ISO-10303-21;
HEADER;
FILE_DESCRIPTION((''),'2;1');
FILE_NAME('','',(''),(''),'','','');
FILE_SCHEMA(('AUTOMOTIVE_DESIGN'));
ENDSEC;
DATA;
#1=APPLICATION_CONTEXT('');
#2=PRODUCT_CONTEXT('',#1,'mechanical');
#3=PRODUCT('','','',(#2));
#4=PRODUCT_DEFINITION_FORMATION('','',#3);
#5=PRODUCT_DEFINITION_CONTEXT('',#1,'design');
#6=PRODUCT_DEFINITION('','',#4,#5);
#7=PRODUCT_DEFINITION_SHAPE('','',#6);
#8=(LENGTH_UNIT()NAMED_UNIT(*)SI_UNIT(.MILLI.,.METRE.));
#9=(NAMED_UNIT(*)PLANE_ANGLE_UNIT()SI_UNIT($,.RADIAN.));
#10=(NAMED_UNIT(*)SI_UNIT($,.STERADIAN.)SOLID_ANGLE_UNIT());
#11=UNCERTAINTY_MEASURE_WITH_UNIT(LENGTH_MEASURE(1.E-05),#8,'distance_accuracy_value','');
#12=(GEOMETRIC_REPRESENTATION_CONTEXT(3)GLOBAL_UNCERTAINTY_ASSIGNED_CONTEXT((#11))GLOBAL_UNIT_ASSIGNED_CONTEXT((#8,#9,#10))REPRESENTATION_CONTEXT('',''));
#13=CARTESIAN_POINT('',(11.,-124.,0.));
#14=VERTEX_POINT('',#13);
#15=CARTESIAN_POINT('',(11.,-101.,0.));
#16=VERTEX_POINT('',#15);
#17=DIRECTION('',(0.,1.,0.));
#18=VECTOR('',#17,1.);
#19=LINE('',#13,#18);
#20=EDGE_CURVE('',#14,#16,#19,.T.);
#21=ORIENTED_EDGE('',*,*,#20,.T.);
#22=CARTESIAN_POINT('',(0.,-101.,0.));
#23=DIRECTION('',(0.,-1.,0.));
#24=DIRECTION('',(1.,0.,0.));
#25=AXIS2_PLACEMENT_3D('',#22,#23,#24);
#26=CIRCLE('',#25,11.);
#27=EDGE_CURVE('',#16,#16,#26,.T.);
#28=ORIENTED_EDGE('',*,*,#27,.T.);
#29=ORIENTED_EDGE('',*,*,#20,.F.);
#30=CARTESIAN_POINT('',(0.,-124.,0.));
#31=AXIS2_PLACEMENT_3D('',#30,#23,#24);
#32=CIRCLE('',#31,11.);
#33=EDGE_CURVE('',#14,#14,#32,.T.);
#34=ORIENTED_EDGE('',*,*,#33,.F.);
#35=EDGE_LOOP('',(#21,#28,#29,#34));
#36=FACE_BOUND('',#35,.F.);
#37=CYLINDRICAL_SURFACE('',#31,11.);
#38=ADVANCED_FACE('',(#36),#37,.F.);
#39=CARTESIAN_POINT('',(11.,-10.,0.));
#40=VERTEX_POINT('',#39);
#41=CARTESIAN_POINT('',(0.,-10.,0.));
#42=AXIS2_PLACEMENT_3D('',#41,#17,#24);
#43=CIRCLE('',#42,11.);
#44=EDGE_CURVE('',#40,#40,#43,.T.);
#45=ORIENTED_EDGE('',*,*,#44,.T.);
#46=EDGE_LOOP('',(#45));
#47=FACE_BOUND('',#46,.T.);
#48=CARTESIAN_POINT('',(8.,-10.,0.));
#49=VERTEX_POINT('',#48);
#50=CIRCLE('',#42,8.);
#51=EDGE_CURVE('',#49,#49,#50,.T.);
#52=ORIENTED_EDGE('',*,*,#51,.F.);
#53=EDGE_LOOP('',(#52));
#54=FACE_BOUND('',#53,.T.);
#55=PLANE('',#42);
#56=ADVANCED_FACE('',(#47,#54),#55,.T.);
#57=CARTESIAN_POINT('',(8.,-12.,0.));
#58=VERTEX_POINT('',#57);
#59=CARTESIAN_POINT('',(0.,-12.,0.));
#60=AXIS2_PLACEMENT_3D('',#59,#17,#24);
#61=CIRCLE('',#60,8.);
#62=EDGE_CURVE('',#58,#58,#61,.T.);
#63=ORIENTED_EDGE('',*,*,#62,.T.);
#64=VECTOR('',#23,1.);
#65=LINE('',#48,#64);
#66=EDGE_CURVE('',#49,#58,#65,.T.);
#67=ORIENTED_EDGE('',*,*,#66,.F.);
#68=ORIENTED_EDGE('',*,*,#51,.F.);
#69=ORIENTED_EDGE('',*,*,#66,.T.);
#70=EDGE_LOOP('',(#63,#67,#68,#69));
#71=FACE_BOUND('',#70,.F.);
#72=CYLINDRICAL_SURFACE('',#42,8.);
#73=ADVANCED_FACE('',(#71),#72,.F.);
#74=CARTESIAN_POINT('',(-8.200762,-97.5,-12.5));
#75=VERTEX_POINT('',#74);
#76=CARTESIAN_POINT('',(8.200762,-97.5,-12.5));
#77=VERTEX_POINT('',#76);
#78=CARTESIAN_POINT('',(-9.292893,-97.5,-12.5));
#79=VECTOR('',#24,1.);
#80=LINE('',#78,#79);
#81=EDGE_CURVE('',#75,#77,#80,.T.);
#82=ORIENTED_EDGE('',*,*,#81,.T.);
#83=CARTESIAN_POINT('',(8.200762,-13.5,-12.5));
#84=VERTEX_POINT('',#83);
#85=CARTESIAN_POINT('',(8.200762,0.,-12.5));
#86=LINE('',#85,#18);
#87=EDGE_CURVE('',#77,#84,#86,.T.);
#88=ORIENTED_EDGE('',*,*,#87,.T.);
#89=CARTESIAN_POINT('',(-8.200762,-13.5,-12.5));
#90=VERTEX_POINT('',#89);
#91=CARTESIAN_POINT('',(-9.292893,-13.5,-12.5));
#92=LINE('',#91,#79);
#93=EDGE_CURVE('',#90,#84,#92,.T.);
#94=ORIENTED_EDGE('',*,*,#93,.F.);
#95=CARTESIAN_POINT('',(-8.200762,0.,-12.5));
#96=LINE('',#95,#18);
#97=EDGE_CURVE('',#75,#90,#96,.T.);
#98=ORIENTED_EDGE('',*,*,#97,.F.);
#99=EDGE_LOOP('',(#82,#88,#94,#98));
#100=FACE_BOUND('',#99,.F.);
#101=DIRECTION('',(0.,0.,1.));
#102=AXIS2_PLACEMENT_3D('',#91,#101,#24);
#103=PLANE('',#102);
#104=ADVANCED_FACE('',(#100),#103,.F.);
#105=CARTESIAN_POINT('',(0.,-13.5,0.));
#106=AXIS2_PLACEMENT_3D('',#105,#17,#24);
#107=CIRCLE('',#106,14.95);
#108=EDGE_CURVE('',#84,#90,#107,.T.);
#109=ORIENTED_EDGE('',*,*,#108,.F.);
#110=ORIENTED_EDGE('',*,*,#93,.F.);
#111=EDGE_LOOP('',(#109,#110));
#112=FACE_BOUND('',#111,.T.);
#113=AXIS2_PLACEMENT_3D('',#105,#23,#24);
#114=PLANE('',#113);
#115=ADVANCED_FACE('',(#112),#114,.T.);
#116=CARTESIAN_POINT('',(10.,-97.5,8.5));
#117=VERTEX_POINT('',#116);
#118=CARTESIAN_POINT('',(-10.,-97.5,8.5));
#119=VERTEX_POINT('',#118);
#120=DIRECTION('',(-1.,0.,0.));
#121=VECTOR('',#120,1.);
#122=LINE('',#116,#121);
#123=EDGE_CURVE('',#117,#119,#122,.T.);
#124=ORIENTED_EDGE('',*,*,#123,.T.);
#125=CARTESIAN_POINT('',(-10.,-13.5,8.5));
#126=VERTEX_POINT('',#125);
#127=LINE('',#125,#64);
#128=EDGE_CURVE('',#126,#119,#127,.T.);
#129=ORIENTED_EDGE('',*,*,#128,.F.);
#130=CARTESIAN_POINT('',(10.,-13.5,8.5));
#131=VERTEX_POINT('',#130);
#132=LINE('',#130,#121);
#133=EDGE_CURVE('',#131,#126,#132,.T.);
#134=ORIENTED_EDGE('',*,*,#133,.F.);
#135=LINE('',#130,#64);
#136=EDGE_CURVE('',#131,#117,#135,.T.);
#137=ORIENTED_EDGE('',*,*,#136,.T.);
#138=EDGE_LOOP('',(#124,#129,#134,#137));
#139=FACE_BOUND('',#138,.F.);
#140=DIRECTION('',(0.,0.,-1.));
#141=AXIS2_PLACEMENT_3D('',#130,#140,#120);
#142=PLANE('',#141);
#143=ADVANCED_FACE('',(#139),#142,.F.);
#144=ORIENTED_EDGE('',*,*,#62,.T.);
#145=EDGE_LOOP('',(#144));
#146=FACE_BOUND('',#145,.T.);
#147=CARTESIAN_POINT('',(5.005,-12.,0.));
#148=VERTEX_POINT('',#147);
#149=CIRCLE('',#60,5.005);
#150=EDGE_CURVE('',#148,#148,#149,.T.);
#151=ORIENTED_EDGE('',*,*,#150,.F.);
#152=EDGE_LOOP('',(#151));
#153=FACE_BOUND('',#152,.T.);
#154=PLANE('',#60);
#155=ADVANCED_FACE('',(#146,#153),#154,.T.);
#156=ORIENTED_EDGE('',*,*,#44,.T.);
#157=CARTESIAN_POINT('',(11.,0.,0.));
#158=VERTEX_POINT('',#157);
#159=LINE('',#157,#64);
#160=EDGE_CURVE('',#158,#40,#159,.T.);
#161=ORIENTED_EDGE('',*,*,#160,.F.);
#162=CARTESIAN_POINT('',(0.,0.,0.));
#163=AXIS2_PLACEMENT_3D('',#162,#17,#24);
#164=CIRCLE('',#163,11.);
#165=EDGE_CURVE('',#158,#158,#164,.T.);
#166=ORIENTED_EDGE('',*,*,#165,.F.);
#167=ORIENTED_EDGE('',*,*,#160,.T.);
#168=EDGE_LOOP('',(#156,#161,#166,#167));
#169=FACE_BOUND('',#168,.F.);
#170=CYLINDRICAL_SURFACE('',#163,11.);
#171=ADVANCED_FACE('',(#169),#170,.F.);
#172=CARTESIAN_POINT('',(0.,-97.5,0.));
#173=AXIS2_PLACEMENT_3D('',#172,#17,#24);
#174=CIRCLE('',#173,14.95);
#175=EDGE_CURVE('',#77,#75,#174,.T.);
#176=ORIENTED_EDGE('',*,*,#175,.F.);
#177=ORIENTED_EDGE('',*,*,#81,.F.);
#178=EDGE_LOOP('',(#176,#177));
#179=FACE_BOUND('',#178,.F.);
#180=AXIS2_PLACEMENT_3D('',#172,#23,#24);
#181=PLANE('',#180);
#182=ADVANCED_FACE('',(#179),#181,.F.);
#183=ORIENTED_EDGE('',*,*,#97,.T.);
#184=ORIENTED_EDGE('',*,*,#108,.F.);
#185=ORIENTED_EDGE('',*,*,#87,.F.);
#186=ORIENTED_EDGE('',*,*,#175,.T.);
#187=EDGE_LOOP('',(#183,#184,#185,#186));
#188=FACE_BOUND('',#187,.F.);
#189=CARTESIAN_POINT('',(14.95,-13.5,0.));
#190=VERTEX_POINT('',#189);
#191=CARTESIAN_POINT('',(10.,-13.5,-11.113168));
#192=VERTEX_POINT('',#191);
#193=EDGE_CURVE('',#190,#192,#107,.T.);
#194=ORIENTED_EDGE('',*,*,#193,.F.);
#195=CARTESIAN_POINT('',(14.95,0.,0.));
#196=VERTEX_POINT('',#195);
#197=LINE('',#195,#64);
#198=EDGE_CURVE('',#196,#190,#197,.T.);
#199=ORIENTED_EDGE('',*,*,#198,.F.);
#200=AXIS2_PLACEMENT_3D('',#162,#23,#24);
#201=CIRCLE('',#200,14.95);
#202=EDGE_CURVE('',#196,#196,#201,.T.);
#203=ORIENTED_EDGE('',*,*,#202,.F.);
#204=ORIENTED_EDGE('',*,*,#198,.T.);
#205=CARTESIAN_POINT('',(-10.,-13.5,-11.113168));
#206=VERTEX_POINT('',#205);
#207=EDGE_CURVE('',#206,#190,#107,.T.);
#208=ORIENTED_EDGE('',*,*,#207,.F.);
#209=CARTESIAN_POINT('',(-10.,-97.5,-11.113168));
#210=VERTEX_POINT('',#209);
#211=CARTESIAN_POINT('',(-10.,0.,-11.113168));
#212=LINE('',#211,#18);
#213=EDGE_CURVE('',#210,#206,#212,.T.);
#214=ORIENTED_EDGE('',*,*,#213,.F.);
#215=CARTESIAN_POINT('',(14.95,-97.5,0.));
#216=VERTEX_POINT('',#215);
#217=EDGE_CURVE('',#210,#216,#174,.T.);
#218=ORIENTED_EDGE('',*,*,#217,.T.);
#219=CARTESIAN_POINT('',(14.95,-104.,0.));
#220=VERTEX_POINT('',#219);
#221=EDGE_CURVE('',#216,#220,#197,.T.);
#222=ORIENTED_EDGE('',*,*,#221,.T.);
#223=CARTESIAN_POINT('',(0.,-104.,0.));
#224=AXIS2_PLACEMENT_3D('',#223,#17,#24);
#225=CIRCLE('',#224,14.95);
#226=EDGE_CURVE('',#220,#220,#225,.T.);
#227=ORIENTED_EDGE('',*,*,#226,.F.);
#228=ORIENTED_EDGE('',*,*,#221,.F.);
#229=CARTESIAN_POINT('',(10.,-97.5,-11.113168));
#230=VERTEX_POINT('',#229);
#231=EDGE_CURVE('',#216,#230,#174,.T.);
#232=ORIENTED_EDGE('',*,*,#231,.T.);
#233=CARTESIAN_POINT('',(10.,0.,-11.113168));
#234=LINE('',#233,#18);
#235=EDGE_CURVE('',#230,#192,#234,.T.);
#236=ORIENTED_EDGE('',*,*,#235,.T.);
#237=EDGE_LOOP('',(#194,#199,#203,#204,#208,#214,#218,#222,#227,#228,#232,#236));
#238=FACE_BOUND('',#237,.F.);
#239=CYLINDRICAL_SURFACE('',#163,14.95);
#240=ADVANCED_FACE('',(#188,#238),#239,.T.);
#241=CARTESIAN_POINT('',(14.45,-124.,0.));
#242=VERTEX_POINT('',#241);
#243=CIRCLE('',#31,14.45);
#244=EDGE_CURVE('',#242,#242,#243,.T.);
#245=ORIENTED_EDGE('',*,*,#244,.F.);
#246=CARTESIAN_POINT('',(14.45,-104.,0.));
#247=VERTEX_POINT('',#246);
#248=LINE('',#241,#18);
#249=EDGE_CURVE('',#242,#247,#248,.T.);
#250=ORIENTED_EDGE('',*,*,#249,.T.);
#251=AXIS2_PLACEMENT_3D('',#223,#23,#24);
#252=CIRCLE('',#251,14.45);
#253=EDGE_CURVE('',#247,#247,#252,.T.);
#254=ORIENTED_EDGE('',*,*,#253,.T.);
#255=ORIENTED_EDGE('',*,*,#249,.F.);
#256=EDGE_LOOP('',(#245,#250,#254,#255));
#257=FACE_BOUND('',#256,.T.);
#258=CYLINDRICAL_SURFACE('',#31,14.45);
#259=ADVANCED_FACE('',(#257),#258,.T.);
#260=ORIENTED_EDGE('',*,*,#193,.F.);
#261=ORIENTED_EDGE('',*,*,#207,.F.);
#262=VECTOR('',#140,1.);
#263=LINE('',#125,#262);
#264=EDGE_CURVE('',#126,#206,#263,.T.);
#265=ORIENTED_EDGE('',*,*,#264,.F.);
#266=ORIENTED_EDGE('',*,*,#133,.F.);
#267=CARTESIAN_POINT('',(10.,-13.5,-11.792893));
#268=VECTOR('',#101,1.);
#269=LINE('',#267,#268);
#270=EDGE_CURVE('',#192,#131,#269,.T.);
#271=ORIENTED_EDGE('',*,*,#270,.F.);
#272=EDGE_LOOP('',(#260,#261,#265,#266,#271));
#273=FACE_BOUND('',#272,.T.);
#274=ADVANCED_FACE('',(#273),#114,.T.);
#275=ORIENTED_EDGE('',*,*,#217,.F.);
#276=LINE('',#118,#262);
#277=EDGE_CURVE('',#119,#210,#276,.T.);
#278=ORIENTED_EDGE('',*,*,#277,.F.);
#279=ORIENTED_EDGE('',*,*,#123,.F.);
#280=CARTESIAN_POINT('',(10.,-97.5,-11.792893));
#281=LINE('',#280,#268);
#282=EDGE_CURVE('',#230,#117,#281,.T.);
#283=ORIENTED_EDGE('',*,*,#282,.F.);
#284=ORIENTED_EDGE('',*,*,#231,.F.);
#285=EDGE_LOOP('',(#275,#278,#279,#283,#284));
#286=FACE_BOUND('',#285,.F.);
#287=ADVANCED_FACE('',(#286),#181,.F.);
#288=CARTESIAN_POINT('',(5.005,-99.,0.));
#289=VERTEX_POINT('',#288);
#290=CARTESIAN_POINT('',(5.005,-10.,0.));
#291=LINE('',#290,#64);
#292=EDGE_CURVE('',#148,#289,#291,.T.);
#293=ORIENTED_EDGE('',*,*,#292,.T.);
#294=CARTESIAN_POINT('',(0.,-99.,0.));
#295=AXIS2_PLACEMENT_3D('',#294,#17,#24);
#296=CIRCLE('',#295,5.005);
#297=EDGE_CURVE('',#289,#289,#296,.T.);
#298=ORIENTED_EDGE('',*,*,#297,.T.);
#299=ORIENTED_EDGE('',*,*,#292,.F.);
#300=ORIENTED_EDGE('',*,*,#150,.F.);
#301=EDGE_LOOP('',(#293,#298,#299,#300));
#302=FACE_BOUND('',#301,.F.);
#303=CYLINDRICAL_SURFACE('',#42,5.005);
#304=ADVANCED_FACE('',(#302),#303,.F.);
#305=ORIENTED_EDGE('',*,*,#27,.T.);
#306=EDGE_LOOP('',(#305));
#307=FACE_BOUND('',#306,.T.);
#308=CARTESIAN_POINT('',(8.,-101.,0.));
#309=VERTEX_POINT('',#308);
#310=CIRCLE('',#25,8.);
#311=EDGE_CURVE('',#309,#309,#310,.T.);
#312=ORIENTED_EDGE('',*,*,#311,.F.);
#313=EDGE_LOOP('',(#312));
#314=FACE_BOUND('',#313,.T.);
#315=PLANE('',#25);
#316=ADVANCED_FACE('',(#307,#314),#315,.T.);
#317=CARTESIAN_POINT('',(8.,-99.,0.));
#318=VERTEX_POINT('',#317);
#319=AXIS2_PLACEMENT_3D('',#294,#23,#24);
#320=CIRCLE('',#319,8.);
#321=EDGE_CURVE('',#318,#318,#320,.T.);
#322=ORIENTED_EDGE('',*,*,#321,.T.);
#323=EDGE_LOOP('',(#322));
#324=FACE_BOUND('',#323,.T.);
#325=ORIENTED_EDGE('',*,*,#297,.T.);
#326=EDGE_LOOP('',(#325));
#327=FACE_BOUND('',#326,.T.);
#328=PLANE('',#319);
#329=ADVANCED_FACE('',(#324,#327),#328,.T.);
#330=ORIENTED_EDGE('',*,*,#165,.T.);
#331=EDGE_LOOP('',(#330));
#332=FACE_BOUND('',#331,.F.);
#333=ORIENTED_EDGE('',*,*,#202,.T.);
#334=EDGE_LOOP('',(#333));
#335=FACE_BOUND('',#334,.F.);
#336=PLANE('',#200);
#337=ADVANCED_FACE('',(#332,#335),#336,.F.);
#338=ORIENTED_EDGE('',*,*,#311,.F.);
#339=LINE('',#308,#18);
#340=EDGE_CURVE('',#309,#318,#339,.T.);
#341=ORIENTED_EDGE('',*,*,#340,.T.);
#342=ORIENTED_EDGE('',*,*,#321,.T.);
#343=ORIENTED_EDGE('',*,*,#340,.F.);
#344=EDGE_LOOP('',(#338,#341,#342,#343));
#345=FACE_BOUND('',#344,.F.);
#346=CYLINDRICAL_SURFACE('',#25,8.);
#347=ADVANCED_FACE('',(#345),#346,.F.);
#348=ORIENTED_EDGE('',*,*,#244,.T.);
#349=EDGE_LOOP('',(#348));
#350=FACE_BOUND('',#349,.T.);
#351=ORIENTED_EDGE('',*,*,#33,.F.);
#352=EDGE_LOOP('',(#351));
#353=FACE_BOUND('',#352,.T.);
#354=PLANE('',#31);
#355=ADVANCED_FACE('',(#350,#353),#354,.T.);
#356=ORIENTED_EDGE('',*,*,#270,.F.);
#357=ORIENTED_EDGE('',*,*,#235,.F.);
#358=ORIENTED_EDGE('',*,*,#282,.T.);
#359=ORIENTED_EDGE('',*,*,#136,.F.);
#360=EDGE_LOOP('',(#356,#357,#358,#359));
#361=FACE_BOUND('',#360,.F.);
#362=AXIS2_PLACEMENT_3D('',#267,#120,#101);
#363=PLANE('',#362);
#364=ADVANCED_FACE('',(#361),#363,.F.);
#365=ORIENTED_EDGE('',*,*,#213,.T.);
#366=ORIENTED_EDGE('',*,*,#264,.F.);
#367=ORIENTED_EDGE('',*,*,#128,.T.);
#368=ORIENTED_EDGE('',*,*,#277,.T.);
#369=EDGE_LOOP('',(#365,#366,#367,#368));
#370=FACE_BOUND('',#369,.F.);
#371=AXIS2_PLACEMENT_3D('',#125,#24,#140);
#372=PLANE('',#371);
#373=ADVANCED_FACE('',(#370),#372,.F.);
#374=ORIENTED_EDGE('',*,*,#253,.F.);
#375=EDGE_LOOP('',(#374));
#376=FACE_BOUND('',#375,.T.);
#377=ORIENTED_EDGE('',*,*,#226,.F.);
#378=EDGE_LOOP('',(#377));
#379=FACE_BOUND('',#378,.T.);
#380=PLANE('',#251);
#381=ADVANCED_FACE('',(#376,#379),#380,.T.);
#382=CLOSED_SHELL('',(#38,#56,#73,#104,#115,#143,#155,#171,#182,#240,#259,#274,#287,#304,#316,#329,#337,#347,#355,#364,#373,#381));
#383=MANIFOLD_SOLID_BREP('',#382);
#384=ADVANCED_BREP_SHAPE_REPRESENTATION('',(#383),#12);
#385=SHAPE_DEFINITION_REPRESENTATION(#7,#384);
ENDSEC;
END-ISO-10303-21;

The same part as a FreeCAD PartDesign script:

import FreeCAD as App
import Part
import Sketcher

V = App.Vector
Q = App.Units.Quantity

doc = App.newDocument("Part")
body = doc.addObject("PartDesign::Body", "Body")

# Sketch on XZ plane
sketch1 = body.newObject("Sketcher::SketchObject", "Sketch")
sketch1.AttachmentSupport = (doc.getObject("XZ_Plane"), [""])
sketch1.MapMode = "FlatFace"
sketch1.addGeometry(Part.Circle(V(0, 0, 0), V(0, 0, 1), 15), False)
sketch1.addConstraint([
    Sketcher.Constraint("Coincident", 0, 3, -1, 1),
    Sketcher.Constraint("Diameter", 0, Q("29.9 mm")),
])
pad1 = body.newObject("PartDesign::Pad", "Pad")
pad1.Profile = sketch1
pad1.Length = 124

# Sketch on XZ plane
sketch2 = body.newObject("Sketcher::SketchObject", "Sketch001")
sketch2.AttachmentSupport = (doc.getObject("XZ_Plane"), [""])
sketch2.MapMode = "FlatFace"
sketch2.addGeometry(Part.Circle(V(0, 0, 0), V(0, 0, 1), 11), False)
sketch2.addConstraint([
    Sketcher.Constraint("Coincident", 0, 3, -1, 1),
    Sketcher.Constraint("Diameter", 0, Q("22 mm")),
])
pocket1 = body.newObject("PartDesign::Pocket", "Pocket")
pocket1.Profile = sketch2
pocket1.Length = 10
pocket1.Reversed = True

# Sketch on XZ plane
sketch3 = body.newObject("Sketcher::SketchObject", "Sketch002")
sketch3.AttachmentSupport = (doc.getObject("XZ_Plane"), [""])
sketch3.MapMode = "FlatFace"
sketch3.AttachmentOffset = App.Placement(V(0, 0, 10), App.Rotation())
sketch3.addGeometry(Part.Circle(V(0, 0, 0), V(0, 0, 1), 8), False)
sketch3.addConstraint([
    Sketcher.Constraint("Coincident", 0, 3, -1, 1),
    Sketcher.Constraint("Diameter", 0, Q("16 mm")),
])
pocket2 = body.newObject("PartDesign::Pocket", "Pocket001")
pocket2.Profile = sketch3
pocket2.Length = 2
pocket2.Reversed = True

# Sketch on XZ plane
sketch4 = body.newObject("Sketcher::SketchObject", "Sketch003")
sketch4.AttachmentSupport = (doc.getObject("XZ_Plane"), [""])
sketch4.MapMode = "FlatFace"
sketch4.AttachmentOffset = App.Placement(V(0, 0, 10), App.Rotation())
sketch4.addGeometry(Part.Circle(V(0, 0, 0), V(0, 0, 1), 5), False)
sketch4.addConstraint([
    Sketcher.Constraint("Coincident", 0, 3, -1, 1),
    Sketcher.Constraint("Diameter", 0, Q("10.01 mm")),
])
pocket3 = body.newObject("PartDesign::Pocket", "Pocket002")
pocket3.Profile = sketch4
pocket3.Type = "ThroughAll"
pocket3.Reversed = True

# Sketch on XZ plane
sketch5 = body.newObject("Sketcher::SketchObject", "Sketch004")
sketch5.AttachmentSupport = (doc.getObject("XZ_Plane"), [""])
sketch5.MapMode = "FlatFace"
sketch5.AttachmentOffset = App.Placement(V(0, 0, 124), App.Rotation())
sketch5.addGeometry(Part.Circle(V(0, 0, 0), V(0, 0, 1), 11), False)
sketch5.addConstraint([
    Sketcher.Constraint("Coincident", 0, 3, -1, 1),
    Sketcher.Constraint("Diameter", 0, Q("22 mm")),
])
pocket4 = body.newObject("PartDesign::Pocket", "Pocket003")
pocket4.Profile = sketch5
pocket4.Length = 23

# Sketch on XZ plane
sketch6 = body.newObject("Sketcher::SketchObject", "Sketch005")
sketch6.AttachmentSupport = (doc.getObject("XZ_Plane"), [""])
sketch6.MapMode = "FlatFace"
sketch6.AttachmentOffset = App.Placement(V(0, 0, 101), App.Rotation())
sketch6.addGeometry(Part.Circle(V(0, 0, 0), V(0, 0, 1), 8), False)
sketch6.addConstraint([
    Sketcher.Constraint("Coincident", 0, 3, -1, 1),
    Sketcher.Constraint("Diameter", 0, Q("16 mm")),
])
pocket5 = body.newObject("PartDesign::Pocket", "Pocket004")
pocket5.Profile = sketch6
pocket5.Length = 2

# Sketch on XZ plane
sketch7 = body.newObject("Sketcher::SketchObject", "Sketch006")
sketch7.AttachmentSupport = (doc.getObject("XZ_Plane"), [""])
sketch7.MapMode = "FlatFace"
sketch7.AttachmentOffset = App.Placement(V(0, 0, 13.5), App.Rotation())
sketch7.addGeometry([
    Part.LineSegment(V(-15.4, 15.4, 0), V(-15.4, -15.4, 0)),  # 0
    Part.LineSegment(V(-15.4, -15.4, 0), V(15.4, -15.4, 0)),  # 1
    Part.LineSegment(V(15.4, -15.4, 0), V(15.4, 15.4, 0)),  # 2
    Part.LineSegment(V(15.4, 15.4, 0), V(-15.4, 15.4, 0)),  # 3
    Part.LineSegment(V(9.3, -12.5, 0), V(-9.3, -12.5, 0)),  # 4
    Part.LineSegment(V(-9.3, -12.5, 0), V(-10, -11.8, 0)),  # 5
    Part.LineSegment(V(-10, -11.8, 0), V(-10, 8.5, 0)),  # 6
    Part.LineSegment(V(-10, 8.5, 0), V(10, 8.5, 0)),  # 7
    Part.LineSegment(V(10, 8.5, 0), V(10, -11.8, 0)),  # 8
    Part.LineSegment(V(10, -11.8, 0), V(9.3, -12.5, 0)),  # 9
], False)
sketch7.addConstraint([
    Sketcher.Constraint("Coincident", 0, 2, 1, 1),
    Sketcher.Constraint("Coincident", 1, 2, 2, 1),
    Sketcher.Constraint("Coincident", 2, 2, 3, 1),
    Sketcher.Constraint("Coincident", 3, 2, 0, 1),
    Sketcher.Constraint("Coincident", 4, 2, 5, 1),
    Sketcher.Constraint("Coincident", 5, 2, 6, 1),
    Sketcher.Constraint("Coincident", 6, 2, 7, 1),
    Sketcher.Constraint("Coincident", 7, 2, 8, 1),
    Sketcher.Constraint("Coincident", 8, 2, 9, 1),
    Sketcher.Constraint("Coincident", 9, 2, 4, 1),
    Sketcher.Constraint("Vertical", 0),
    Sketcher.Constraint("Horizontal", 1),
    Sketcher.Constraint("Vertical", 2),
    Sketcher.Constraint("Horizontal", 3),
    Sketcher.Constraint("Horizontal", 4),
    Sketcher.Constraint("Vertical", 6),
    Sketcher.Constraint("Horizontal", 7),
    Sketcher.Constraint("Vertical", 8),
    Sketcher.Constraint("Symmetric", 0, 2, 2, 2, -1, 1),
    Sketcher.Constraint("Symmetric", 5, 2, 8, 2, -2),
    Sketcher.Constraint("Perpendicular", 5, 9),
    Sketcher.Constraint("Equal", 3, 0),
    Sketcher.Constraint("Equal", 5, 9),
    Sketcher.Constraint("DistanceX", 7, 1, 7, 2, Q("20 mm")),
    Sketcher.Constraint("Distance", 5, Q("1 mm")),
    Sketcher.Constraint("DistanceX", 1, 1, 1, 2, Q("30.9 mm")),
    Sketcher.Constraint("DistanceY", 4, 2, 6, 2, Q("21 mm")),
    Sketcher.Constraint("DistanceY", 4, 2, -1, 1, Q("12.5 mm")),
])
pocket6 = body.newObject("PartDesign::Pocket", "Pocket005")
pocket6.Profile = sketch7
pocket6.Length = 84
pocket6.Reversed = True

# Sketch on XZ plane
sketch8 = body.newObject("Sketcher::SketchObject", "Sketch007")
sketch8.AttachmentSupport = (doc.getObject("XZ_Plane"), [""])
sketch8.MapMode = "FlatFace"
sketch8.AttachmentOffset = App.Placement(V(0, 0, 124), App.Rotation())
sketch8.addGeometry([
    Part.Circle(V(0, 0, 0), V(0, 0, 1), 15),
    Part.Circle(V(0, 0, 0), V(0, 0, 1), 14),
], False)
sketch8.addConstraint([
    Sketcher.Constraint("Coincident", 0, 3, -1, 1),
    Sketcher.Constraint("Coincident", 1, 3, -1, 1),
    Sketcher.Constraint("Diameter", 0, Q("30.9 mm")),
    Sketcher.Constraint("Diameter", 1, Q("28.9 mm")),
])
pocket7 = body.newObject("PartDesign::Pocket", "Pocket006")
pocket7.Profile = sketch8
pocket7.Length = 20

doc.recompute()
